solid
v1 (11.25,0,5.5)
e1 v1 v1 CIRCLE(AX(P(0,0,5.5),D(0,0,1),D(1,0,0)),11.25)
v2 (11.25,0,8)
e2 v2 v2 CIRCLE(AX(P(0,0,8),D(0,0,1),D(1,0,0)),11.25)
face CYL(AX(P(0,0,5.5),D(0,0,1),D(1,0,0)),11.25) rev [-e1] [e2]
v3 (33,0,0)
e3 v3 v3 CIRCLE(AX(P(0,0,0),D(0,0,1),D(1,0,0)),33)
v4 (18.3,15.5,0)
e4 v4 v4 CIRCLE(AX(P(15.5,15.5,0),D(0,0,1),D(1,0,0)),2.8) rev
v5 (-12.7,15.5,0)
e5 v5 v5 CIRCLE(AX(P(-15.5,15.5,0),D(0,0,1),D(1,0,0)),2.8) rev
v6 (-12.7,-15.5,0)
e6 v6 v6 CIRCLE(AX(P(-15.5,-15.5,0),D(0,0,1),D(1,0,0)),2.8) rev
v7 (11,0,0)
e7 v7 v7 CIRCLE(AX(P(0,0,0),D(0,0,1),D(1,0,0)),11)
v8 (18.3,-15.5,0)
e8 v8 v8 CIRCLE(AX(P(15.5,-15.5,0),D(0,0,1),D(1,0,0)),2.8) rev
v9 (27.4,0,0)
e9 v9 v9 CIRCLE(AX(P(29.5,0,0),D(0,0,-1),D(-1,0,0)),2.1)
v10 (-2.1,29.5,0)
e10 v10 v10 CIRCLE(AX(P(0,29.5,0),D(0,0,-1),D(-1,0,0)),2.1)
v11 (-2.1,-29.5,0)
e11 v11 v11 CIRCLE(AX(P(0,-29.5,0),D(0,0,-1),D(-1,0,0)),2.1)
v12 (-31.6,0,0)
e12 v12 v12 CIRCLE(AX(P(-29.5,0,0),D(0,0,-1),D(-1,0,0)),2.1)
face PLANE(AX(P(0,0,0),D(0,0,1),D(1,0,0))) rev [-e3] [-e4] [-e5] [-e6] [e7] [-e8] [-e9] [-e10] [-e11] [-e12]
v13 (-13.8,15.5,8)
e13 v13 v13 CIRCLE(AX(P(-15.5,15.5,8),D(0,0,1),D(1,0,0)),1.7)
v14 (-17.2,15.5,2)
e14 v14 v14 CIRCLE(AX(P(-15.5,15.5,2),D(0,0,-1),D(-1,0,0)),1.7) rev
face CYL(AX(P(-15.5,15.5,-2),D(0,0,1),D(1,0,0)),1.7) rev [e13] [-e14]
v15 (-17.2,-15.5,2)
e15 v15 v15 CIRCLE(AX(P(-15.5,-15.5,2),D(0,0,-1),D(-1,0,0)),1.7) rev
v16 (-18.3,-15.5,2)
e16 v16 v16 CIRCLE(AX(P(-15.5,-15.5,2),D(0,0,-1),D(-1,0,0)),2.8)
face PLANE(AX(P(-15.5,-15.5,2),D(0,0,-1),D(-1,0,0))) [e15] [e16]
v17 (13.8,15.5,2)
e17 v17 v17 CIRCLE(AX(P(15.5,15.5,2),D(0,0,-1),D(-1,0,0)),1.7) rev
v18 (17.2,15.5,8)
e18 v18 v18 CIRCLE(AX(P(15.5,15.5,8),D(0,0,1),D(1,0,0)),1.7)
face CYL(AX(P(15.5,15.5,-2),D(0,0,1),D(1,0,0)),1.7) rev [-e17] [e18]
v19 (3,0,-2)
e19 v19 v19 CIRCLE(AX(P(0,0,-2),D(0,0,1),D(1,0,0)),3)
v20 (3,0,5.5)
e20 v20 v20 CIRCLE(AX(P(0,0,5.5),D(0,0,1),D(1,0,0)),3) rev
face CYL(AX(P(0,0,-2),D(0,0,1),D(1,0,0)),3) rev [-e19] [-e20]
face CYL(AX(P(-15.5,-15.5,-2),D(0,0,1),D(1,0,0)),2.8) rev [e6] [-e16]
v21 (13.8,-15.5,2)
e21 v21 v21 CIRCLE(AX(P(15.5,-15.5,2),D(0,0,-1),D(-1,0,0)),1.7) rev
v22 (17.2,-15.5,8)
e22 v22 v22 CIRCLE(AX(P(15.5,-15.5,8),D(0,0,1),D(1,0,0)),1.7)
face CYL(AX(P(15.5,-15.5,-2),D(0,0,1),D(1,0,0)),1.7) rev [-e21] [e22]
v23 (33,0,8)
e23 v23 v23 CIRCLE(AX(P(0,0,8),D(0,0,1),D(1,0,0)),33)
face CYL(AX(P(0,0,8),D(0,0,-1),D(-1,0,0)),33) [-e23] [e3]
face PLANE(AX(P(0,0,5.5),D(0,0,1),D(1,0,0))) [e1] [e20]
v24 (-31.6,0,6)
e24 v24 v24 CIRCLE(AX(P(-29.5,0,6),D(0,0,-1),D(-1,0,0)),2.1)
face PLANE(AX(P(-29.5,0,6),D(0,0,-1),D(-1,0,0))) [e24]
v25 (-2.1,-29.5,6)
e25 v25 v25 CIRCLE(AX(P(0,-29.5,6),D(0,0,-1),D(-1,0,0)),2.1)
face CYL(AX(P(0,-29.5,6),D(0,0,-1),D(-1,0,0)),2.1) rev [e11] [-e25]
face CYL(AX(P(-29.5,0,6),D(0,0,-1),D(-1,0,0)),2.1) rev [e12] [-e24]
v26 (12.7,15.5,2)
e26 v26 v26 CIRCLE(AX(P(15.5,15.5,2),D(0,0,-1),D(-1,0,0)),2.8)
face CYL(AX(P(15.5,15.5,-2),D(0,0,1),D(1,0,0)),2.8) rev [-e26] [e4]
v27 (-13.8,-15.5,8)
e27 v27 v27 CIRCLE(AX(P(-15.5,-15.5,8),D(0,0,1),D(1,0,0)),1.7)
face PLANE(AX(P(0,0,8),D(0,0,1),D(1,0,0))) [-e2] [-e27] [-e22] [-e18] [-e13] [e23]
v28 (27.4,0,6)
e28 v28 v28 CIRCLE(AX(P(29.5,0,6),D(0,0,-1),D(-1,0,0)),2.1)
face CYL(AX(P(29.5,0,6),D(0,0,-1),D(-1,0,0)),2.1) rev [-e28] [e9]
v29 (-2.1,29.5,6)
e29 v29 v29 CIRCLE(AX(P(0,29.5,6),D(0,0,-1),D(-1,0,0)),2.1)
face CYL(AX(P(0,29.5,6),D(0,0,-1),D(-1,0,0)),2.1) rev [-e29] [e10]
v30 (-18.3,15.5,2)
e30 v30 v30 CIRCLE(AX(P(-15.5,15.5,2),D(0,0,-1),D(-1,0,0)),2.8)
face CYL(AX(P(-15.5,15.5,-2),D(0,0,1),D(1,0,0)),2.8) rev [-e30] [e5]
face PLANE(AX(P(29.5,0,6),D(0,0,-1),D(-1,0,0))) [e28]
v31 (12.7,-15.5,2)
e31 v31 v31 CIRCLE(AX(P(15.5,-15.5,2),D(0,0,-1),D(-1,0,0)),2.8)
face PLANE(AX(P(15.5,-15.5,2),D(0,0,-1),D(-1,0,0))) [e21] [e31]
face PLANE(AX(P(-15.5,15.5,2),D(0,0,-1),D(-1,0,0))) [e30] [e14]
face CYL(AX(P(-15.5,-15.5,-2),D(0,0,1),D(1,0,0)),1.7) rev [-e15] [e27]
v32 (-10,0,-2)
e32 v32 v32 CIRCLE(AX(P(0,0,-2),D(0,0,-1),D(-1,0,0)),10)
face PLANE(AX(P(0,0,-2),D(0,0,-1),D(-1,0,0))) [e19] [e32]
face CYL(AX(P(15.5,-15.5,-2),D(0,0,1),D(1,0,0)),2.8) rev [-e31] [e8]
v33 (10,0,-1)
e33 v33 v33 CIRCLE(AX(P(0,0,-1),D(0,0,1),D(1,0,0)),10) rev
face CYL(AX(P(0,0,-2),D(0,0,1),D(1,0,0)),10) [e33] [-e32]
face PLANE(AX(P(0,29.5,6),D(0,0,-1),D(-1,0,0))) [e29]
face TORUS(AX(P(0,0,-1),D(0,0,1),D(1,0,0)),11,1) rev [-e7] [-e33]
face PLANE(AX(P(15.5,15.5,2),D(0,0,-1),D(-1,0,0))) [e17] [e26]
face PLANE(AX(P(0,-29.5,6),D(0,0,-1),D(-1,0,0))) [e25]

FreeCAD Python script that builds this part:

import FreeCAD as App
import Part
import Sketcher

V = App.Vector
Q = App.Units.Quantity


def edges_at(feature, points):
    """Names of the edges that pass closest to the given points."""
    edges = feature.Shape.Edges
    near = lambda p: min(range(len(edges)), key=lambda i: edges[i].distToShape(Part.Vertex(*p))[0])
    return sorted({f"Edge{near(p) + 1}" for p in points})

doc = App.newDocument("Part")
params = doc.addObject("Spreadsheet::Sheet", "Params")
for row, (alias, value) in enumerate([
    ("sketch1_diameter", "66 mm"),
    ("pad1_length", "8 mm"),
    ("sketch2_diameter", "20 mm"),
    ("pad2_length", "2 mm"),
    ("sketch3_diameter", "6 mm"),
    ("sketch3_diameter2", "3.4 mm"),
    ("sketch4_diameter", "5.6 mm"),
    ("pocket2_length", "48.349762 mm"),
    ("pocket2_length2", "2 mm"),
    ("sketch5_diameter", "4.2 mm"),
    ("pocket3_length", "6 mm"),
    ("fillet_radius", "1 mm"),
    ("sketch6_diameter", "22.5 mm"),
    ("pocket4_length", "2.5 mm"),
], start=1):
    params.set(f"A{row}", alias)
    params.set(f"B{row}", "=" + value)
    params.setAlias(f"B{row}", alias)

body = doc.addObject("PartDesign::Body", "Body")

# Sketch on XY plane
sketch1 = body.newObject("Sketcher::SketchObject", "Sketch")
sketch1.AttachmentSupport = (doc.getObject("XY_Plane"), [""])
sketch1.MapMode = "FlatFace"
sketch1.addGeometry(Part.Circle(V(0, 0, 0), V(0, 0, 1), 33), False)
sketch1.addConstraint(Sketcher.Constraint("Coincident", 0, 3, -1, 1))
sketch1.addConstraint(Sketcher.Constraint("Diameter", 0, Q("66 mm")))
sketch1.setExpression("Constraints[1]", "Params.sketch1_diameter")
pad1 = body.newObject("PartDesign::Pad", "Pad")
pad1.Profile = sketch1
pad1.setExpression("Length", "Params.pad1_length")

# Sketch on XY plane
sketch2 = body.newObject("Sketcher::SketchObject", "Sketch001")
sketch2.AttachmentSupport = (doc.getObject("XY_Plane"), [""])
sketch2.MapMode = "FlatFace"
sketch2.addGeometry(Part.Circle(V(0, 0, 0), V(0, 0, 1), 10), False)
sketch2.addConstraint(Sketcher.Constraint("Coincident", 0, 3, -1, 1))
sketch2.addConstraint(Sketcher.Constraint("Diameter", 0, Q("20 mm")))
sketch2.setExpression("Constraints[1]", "Params.sketch2_diameter")
pad2 = body.newObject("PartDesign::Pad", "Pad001")
pad2.Profile = sketch2
pad2.setExpression("Length", "Params.pad2_length")
pad2.Reversed = True

# Sketch on XY plane
sketch3 = body.newObject("Sketcher::SketchObject", "Sketch002")
sketch3.AttachmentSupport = (doc.getObject("XY_Plane"), [""])
sketch3.MapMode = "FlatFace"
sketch3.AttachmentOffset = App.Placement(V(0, 0, 8), App.Rotation())
sketch3.addGeometry(Part.Circle(V(-15.5, 15.5, 0), V(0, 0, 1), 1.7), False)
sketch3.addGeometry(Part.Circle(V(15.5, 15.5, 0), V(0, 0, 1), 1.7), False)
sketch3.addGeometry(Part.Circle(V(15.5, -15.5, 0), V(0, 0, 1), 1.7), False)
sketch3.addGeometry(Part.Circle(V(-15.5, -15.5, 0), V(0, 0, 1), 1.7), False)
sketch3.addGeometry(Part.Circle(V(0, 0, 0), V(0, 0, 1), 3), False)
sketch3.addConstraint(Sketcher.Constraint("Coincident", 4, 3, -1, 1))
sketch3.addConstraint(Sketcher.Constraint("Equal", 0, 1))
sketch3.addConstraint(Sketcher.Constraint("Equal", 1, 2))
sketch3.addConstraint(Sketcher.Constraint("Equal", 2, 3))
sketch3.addConstraint(Sketcher.Constraint("Symmetric", 0, 3, 2, 3, -1, 1))
sketch3.addConstraint(Sketcher.Constraint("Symmetric", 1, 3, 3, 3, -1, 1))
sketch3.addConstraint(Sketcher.Constraint("Symmetric", 0, 3, 1, 3, -2))
sketch3.addConstraint(Sketcher.Constraint("Diameter", 4, Q("6 mm")))
sketch3.addConstraint(Sketcher.Constraint("Diameter", 0, Q("3.4 mm")))
sketch3.addConstraint(Sketcher.Constraint("DistanceX", 0, 3, 1, 3, Q("31 mm")))
sketch3.addConstraint(Sketcher.Constraint("DistanceY", 2, 3, 1, 3, Q("31 mm")))
sketch3.setExpression("Constraints[7]", "Params.sketch3_diameter")
sketch3.setExpression("Constraints[8]", "Params.sketch3_diameter2")
pocket1 = body.newObject("PartDesign::Pocket", "Pocket")
pocket1.Profile = sketch3
pocket1.Type = "ThroughAll"
pocket1.Midplane = True

# Sketch on XY plane
sketch4 = body.newObject("Sketcher::SketchObject", "Sketch003")
sketch4.AttachmentSupport = (doc.getObject("XY_Plane"), [""])
sketch4.MapMode = "FlatFace"
sketch4.addGeometry(Part.Circle(V(15.5, 15.5, 0), V(0, 0, 1), 2.8), False)
sketch4.addGeometry(Part.Circle(V(-15.5, 15.5, 0), V(0, 0, 1), 2.8), False)
sketch4.addGeometry(Part.Circle(V(-15.5, -15.5, 0), V(0, 0, 1), 2.8), False)
sketch4.addGeometry(Part.Circle(V(15.5, -15.5, 0), V(0, 0, 1), 2.8), False)
sketch4.addConstraint(Sketcher.Constraint("Equal", 0, 1))
sketch4.addConstraint(Sketcher.Constraint("Equal", 1, 2))
sketch4.addConstraint(Sketcher.Constraint("Equal", 2, 3))
sketch4.addConstraint(Sketcher.Constraint("Symmetric", 0, 3, 2, 3, -1, 1))
sketch4.addConstraint(Sketcher.Constraint("Symmetric", 1, 3, 3, 3, -1, 1))
sketch4.addConstraint(Sketcher.Constraint("Symmetric", 0, 3, 1, 3, -2))
sketch4.addConstraint(Sketcher.Constraint("Diameter", 0, Q("5.6 mm")))
sketch4.addConstraint(Sketcher.Constraint("DistanceX", 1, 3, 0, 3, Q("31 mm")))
sketch4.addConstraint(Sketcher.Constraint("DistanceY", 2, 3, 1, 3, Q("31 mm")))
sketch4.setExpression("Constraints[6]", "Params.sketch4_diameter")
pocket2 = body.newObject("PartDesign::Pocket", "Pocket001")
pocket2.Profile = sketch4
pocket2.Type = "TwoLengths"
pocket2.setExpression("Length", "Params.pocket2_length")
pocket2.setExpression("Length2", "Params.pocket2_length2")

# Sketch on XY plane
sketch5 = body.newObject("Sketcher::SketchObject", "Sketch004")
sketch5.AttachmentSupport = (doc.getObject("XY_Plane"), [""])
sketch5.MapMode = "FlatFace"
sketch5.addGeometry(Part.Circle(V(0, 29.5, 0), V(0, 0, 1), 2.1), False)
sketch5.addGeometry(Part.Circle(V(-29.5, 0, 0), V(0, 0, 1), 2.1), False)
sketch5.addGeometry(Part.Circle(V(0, -29.5, 0), V(0, 0, 1), 2.1), False)
sketch5.addGeometry(Part.Circle(V(29.5, 0, 0), V(0, 0, 1), 2.1), False)
sketch5.addConstraint(Sketcher.Constraint("Equal", 0, 1))
sketch5.addConstraint(Sketcher.Constraint("Equal", 1, 2))
sketch5.addConstraint(Sketcher.Constraint("Equal", 2, 3))
sketch5.addConstraint(Sketcher.Constraint("Symmetric", 0, 3, 2, 3, -1, 1))
sketch5.addConstraint(Sketcher.Constraint("Symmetric", 1, 3, 3, 3, -1, 1))
sketch5.addConstraint(Sketcher.Constraint("PointOnObject", 0, 3, -2))
sketch5.addConstraint(Sketcher.Constraint("PointOnObject", 1, 3, -1))
sketch5.addConstraint(Sketcher.Constraint("Diameter", 0, Q("4.2 mm")))
sketch5.addConstraint(Sketcher.Constraint("DistanceY", 2, 3, 0, 3, Q("59 mm")))
sketch5.addConstraint(Sketcher.Constraint("DistanceX", 1, 3, 3, 3, Q("59 mm")))
sketch5.setExpression("Constraints[7]", "Params.sketch5_diameter")
pocket3 = body.newObject("PartDesign::Pocket", "Pocket002")
pocket3.Profile = sketch5
pocket3.setExpression("Length", "Params.pocket3_length")
pocket3.Reversed = True
doc.recompute()

fillet = body.newObject("PartDesign::Fillet", "Fillet")
fillet.Base = (pocket3, edges_at(pocket3, [(10, 0, 0)]))
fillet.setExpression("Radius", "Params.fillet_radius")

# Sketch on XY plane
sketch6 = body.newObject("Sketcher::SketchObject", "Sketch005")
sketch6.AttachmentSupport = (doc.getObject("XY_Plane"), [""])
sketch6.MapMode = "FlatFace"
sketch6.AttachmentOffset = App.Placement(V(0, 0, 8), App.Rotation())
sketch6.addGeometry(Part.Circle(V(0, 0, 0), V(0, 0, 1), 11), False)
sketch6.addConstraint(Sketcher.Constraint("Coincident", 0, 3, -1, 1))
sketch6.addConstraint(Sketcher.Constraint("Diameter", 0, Q("22.5 mm")))
sketch6.setExpression("Constraints[1]", "Params.sketch6_diameter")
pocket4 = body.newObject("PartDesign::Pocket", "Pocket003")
pocket4.Profile = sketch6
pocket4.setExpression("Length", "Params.pocket4_length")

doc.recompute()
